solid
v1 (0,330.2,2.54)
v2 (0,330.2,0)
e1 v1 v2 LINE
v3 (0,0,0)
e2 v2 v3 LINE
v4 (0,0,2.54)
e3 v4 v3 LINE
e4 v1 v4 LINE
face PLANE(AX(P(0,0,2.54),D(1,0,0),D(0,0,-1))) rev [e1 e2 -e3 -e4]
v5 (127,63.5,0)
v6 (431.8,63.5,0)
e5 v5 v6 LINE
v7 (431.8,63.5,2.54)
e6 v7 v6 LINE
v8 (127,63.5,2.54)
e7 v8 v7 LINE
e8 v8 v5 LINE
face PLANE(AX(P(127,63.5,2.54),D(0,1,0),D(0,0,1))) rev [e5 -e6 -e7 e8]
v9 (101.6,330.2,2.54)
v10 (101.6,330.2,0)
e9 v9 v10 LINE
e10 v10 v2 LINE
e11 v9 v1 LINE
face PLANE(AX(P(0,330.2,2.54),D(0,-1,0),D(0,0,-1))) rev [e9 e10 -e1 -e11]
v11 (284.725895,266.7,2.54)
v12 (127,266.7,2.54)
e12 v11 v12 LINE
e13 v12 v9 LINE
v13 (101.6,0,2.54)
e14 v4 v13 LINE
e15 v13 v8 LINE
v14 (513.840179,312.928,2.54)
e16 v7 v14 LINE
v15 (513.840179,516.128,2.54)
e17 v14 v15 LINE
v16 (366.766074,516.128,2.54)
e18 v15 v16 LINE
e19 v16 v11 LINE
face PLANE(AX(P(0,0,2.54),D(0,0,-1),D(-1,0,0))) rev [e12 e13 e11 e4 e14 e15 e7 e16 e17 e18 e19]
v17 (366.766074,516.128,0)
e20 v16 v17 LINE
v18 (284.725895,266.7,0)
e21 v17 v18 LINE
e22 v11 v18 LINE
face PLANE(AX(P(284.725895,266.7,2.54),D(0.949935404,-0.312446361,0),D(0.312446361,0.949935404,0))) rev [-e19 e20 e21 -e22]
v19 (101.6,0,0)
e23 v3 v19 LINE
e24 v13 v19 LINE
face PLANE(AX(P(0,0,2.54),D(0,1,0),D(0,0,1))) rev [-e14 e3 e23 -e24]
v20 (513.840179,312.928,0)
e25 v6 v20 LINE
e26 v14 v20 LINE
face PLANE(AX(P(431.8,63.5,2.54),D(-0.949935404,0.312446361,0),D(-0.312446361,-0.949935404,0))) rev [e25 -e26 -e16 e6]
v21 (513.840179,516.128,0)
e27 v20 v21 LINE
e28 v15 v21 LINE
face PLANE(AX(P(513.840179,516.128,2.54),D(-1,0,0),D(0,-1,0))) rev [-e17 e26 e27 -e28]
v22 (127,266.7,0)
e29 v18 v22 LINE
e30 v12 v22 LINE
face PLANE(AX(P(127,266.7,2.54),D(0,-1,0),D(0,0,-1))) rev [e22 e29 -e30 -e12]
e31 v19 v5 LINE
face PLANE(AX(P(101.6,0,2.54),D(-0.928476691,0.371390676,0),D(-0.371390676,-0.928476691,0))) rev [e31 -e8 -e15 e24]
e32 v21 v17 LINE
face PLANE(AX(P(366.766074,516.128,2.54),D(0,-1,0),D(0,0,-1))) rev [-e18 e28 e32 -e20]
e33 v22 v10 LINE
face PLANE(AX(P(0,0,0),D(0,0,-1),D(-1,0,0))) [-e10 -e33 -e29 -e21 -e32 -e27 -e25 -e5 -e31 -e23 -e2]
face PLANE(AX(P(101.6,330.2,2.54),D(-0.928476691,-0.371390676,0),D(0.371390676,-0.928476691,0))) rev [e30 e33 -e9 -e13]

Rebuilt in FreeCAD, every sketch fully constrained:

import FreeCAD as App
import Part
import Sketcher
Q = App.Units.Quantity


def add_polygon(sketch, points):
    """Adds a closed chain of lines whose ends are joined by coincident constraints."""
    first, n = sketch.GeometryCount, len(points)
    for a, b in zip(points, points[1:] + points[:1]):
        sketch.addGeometry(Part.LineSegment(App.Vector(*a, 0), App.Vector(*b, 0)), False)
    for i in range(n):
        sketch.addConstraint(Sketcher.Constraint("Coincident", first + i, 2, first + (i + 1) % n, 1))

doc = App.newDocument("Part")
body = doc.addObject("PartDesign::Body", "Body")

# Sketch on XY plane
sketch1 = body.newObject("Sketcher::SketchObject", "Sketch")
sketch1.AttachmentSupport = (doc.getObject("XY_Plane"), [""])
sketch1.MapMode = "FlatFace"
add_polygon(sketch1, [(0, 330), (0, 0), (102, 0), (127, 64), (432, 64), (514, 313), (514, 516), (367, 516), (285, 267), (127, 267), (102, 330)])  # lines 0-10
sketch1.addConstraint(Sketcher.Constraint("Vertical", 0))
sketch1.addConstraint(Sketcher.Constraint("Horizontal", 1))
sketch1.addConstraint(Sketcher.Constraint("Horizontal", 3))
sketch1.addConstraint(Sketcher.Constraint("Vertical", 5))
sketch1.addConstraint(Sketcher.Constraint("Horizontal", 6))
sketch1.addConstraint(Sketcher.Constraint("Horizontal", 8))
sketch1.addConstraint(Sketcher.Constraint("Horizontal", 10))
sketch1.addConstraint(Sketcher.Constraint("Coincident", 0, 2, -1, 1))
sketch1.addConstraint(Sketcher.Constraint("Parallel", 4, 7))
sketch1.addConstraint(Sketcher.Constraint("Vertical", 2, 2, 8, 2))
sketch1.addConstraint(Sketcher.Constraint("Vertical", 1, 2, 9, 2))
sketch1.addConstraint(Sketcher.Constraint("Equal", 4, 7))
sketch1.addConstraint(Sketcher.Constraint("Equal", 2, 9))
sketch1.addConstraint(Sketcher.Constraint("DistanceX", 1, 1, 1, 2, Q("4 in")))
sketch1.addConstraint(Sketcher.Constraint("DistanceX", 3, 1, 3, 2, Q("12 in")))
sketch1.addConstraint(Sketcher.Constraint("DistanceY", 0, 2, 0, 1, Q("13 in")))
sketch1.addConstraint(Sketcher.Constraint("DistanceY", 5, 1, 5, 2, Q("8 in")))
sketch1.addConstraint(Sketcher.Constraint("DistanceX", -1, 1, 2, 2, Q("5 in")))
sketch1.addConstraint(Sketcher.Constraint("DistanceY", -1, 1, 4, 2, Q("12.32 in")))
sketch1.addConstraint(Sketcher.Constraint("DistanceX", 6, 2, 6, 1, Q("147.074105 mm")))
sketch1.addConstraint(Sketcher.Constraint("DistanceX", -1, 1, 4, 2, Q("513.840179 mm")))
pad1 = body.newObject("PartDesign::Pad", "Pad")
pad1.Profile = sketch1
pad1.Length = Q("0.1 in")

doc.recompute()
